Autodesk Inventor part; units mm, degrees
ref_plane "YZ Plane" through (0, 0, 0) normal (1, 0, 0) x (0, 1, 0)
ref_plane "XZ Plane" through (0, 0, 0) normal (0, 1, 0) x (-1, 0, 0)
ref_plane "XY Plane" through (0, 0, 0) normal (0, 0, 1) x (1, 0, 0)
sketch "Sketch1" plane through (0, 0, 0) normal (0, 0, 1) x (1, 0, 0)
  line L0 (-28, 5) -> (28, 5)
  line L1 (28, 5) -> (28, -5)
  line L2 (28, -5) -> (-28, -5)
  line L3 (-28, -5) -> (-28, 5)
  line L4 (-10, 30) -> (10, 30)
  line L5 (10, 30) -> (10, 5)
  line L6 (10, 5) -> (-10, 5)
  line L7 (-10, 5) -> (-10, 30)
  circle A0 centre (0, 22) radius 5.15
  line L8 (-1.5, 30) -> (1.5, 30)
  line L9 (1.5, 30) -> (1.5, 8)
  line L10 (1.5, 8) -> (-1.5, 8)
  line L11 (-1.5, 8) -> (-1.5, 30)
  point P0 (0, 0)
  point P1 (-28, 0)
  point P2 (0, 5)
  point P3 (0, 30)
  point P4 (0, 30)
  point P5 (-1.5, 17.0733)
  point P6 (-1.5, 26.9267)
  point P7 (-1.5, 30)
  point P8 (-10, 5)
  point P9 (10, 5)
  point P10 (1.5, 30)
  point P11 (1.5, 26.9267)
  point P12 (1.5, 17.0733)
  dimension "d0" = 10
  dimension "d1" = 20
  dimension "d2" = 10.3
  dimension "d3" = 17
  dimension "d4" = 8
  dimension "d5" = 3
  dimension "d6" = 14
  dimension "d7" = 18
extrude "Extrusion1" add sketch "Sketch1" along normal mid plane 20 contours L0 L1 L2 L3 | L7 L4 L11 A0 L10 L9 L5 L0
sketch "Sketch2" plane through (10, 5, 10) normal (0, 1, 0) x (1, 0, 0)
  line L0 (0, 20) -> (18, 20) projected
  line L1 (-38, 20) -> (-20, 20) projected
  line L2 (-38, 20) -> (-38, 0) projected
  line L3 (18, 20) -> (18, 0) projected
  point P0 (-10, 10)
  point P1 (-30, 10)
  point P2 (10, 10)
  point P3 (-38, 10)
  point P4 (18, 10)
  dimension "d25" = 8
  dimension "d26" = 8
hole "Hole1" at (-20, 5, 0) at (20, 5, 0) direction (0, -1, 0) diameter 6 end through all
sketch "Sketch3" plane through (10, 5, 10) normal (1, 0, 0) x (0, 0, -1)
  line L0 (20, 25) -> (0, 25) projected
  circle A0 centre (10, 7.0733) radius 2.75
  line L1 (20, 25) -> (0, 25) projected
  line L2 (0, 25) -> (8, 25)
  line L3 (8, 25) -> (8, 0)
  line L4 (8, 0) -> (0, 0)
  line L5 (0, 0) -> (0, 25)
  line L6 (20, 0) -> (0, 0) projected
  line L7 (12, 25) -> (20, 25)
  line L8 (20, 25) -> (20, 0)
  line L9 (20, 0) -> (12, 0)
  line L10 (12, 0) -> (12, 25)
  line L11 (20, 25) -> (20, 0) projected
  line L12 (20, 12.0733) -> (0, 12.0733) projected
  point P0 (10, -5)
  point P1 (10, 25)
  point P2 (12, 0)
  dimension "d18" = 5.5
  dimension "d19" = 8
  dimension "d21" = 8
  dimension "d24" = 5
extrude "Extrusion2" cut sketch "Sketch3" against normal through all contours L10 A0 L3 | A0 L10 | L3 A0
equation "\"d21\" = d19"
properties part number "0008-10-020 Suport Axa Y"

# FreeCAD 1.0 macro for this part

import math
import FreeCAD as App
import Part
import Sketcher
from FreeCAD import Vector
Q = App.Units.Quantity

doc = App.newDocument("Part")
body = doc.addObject("PartDesign::Body", "Body")

# Sketch on XY plane
sketch1 = body.newObject("Sketcher::SketchObject", "Sketch")
sketch1.AttachmentSupport = (doc.getObject("XY_Plane"), [""])
sketch1.MapMode = "FlatFace"
sketch1.addGeometry([
    Part.LineSegment(Vector(-10, 5, 0), Vector(-28, 5, 0)),  # 0
    Part.LineSegment(Vector(-28, 5, 0), Vector(-28, -5, 0)),  # 1
    Part.LineSegment(Vector(-28, -5, 0), Vector(28, -5, 0)),  # 2
    Part.LineSegment(Vector(28, -5, 0), Vector(28, 5, 0)),  # 3
    Part.LineSegment(Vector(28, 5, 0), Vector(10, 5, 0)),  # 4
    Part.LineSegment(Vector(10, 5, 0), Vector(10, 30, 0)),  # 5
    Part.LineSegment(Vector(10, 30, 0), Vector(1.5, 30, 0)),  # 6
    Part.LineSegment(Vector(1.5, 30, 0), Vector(1.5, 26.9, 0)),  # 7
    Part.ArcOfCircle(Part.Circle(Vector(0, 22, 0), Vector(0, 0, 1), 5.2), math.radians(-73), math.radians(73)),  # 8
    Part.LineSegment(Vector(1.5, 17.1, 0), Vector(1.5, 8, 0)),  # 9
    Part.LineSegment(Vector(1.5, 8, 0), Vector(-1.5, 8, 0)),  # 10
    Part.LineSegment(Vector(-1.5, 8, 0), Vector(-1.5, 17.1, 0)),  # 11
    Part.ArcOfCircle(Part.Circle(Vector(0, 22, 0), Vector(0, 0, 1), 5.2), math.radians(107), math.radians(253)),  # 12
    Part.LineSegment(Vector(-1.5, 26.9, 0), Vector(-1.5, 30, 0)),  # 13
    Part.LineSegment(Vector(-1.5, 30, 0), Vector(-10, 30, 0)),  # 14
    Part.LineSegment(Vector(-10, 30, 0), Vector(-10, 5, 0)),  # 15
], False)
sketch1.addConstraint([
    Sketcher.Constraint("Coincident", 0, 2, 1, 1),
    Sketcher.Constraint("Coincident", 1, 2, 2, 1),
    Sketcher.Constraint("Coincident", 2, 2, 3, 1),
    Sketcher.Constraint("Coincident", 3, 2, 4, 1),
    Sketcher.Constraint("Coincident", 4, 2, 5, 1),
    Sketcher.Constraint("Coincident", 5, 2, 6, 1),
    Sketcher.Constraint("Coincident", 6, 2, 7, 1),
    Sketcher.Constraint("Coincident", 7, 2, 8, 2),
    Sketcher.Constraint("Coincident", 8, 1, 9, 1),
    Sketcher.Constraint("Coincident", 9, 2, 10, 1),
    Sketcher.Constraint("Coincident", 10, 2, 11, 1),
    Sketcher.Constraint("Coincident", 11, 2, 12, 2),
    Sketcher.Constraint("Coincident", 12, 1, 13, 1),
    Sketcher.Constraint("Coincident", 13, 2, 14, 1),
    Sketcher.Constraint("Coincident", 14, 2, 15, 1),
    Sketcher.Constraint("Coincident", 15, 2, 0, 1),
    Sketcher.Constraint("Horizontal", 0),
    Sketcher.Constraint("Vertical", 1),
    Sketcher.Constraint("Horizontal", 2),
    Sketcher.Constraint("Vertical", 3),
    Sketcher.Constraint("Horizontal", 4),
    Sketcher.Constraint("Vertical", 5),
    Sketcher.Constraint("Horizontal", 6),
    Sketcher.Constraint("Vertical", 7),
    Sketcher.Constraint("Vertical", 9),
    Sketcher.Constraint("Horizontal", 10),
    Sketcher.Constraint("Vertical", 11),
    Sketcher.Constraint("Vertical", 13),
    Sketcher.Constraint("Horizontal", 14),
    Sketcher.Constraint("Vertical", 15),
    Sketcher.Constraint("Coincident", 12, 3, 8, 3),
    Sketcher.Constraint("Equal", 8, 12),
    Sketcher.Constraint("Symmetric", 0, 2, 2, 2, -1, 1),
    Sketcher.Constraint("Symmetric", 8, 1, 11, 2, -2),
    Sketcher.Constraint("Symmetric", 6, 2, 13, 2, -2),
    Sketcher.Constraint("Symmetric", 4, 2, 15, 2, -2),
    Sketcher.Constraint("Vertical", 7, 2, 8, 1),
    Sketcher.Constraint("DistanceX", 0, 2, 0, 1, Q("18 mm")),
    Sketcher.Constraint("DistanceX", 10, 2, 10, 1, Q("3 mm")),
    Sketcher.Constraint("DistanceY", 1, 2, 1, 1, Q("10 mm")),
    Sketcher.Constraint("Radius", 8, Q("5.15 mm")),
    Sketcher.Constraint("DistanceX", -1, 1, 4, 2, Q("10 mm")),
    Sketcher.Constraint("DistanceY", -1, 1, 9, 2, Q("8 mm")),
    Sketcher.Constraint("DistanceY", 0, 2, 8, 3, Q("17 mm")),
    Sketcher.Constraint("DistanceY", 8, 3, 5, 2, Q("8 mm")),
])
pad1 = body.newObject("PartDesign::Pad", "Pad")
pad1.Profile = sketch1
pad1.Length = 20
pad1.Midplane = True

# Sketch on XZ plane
sketch2 = body.newObject("Sketcher::SketchObject", "Sketch001")
sketch2.AttachmentSupport = (doc.getObject("XZ_Plane"), [""])
sketch2.MapMode = "FlatFace"
sketch2.AttachmentOffset = App.Placement(Vector(0, 0, -5), App.Rotation())
sketch2.addGeometry([
    Part.Circle(Vector(-20, 0, 0), Vector(0, 0, 1), 3),
    Part.Circle(Vector(20, 0, 0), Vector(0, 0, 1), 3),
], False)
sketch2.addConstraint([
    Sketcher.Constraint("Equal", 0, 1),
    Sketcher.Constraint("Symmetric", 0, 3, 1, 3, -1, 1),
    Sketcher.Constraint("PointOnObject", 0, 3, -1),
    Sketcher.Constraint("Diameter", 0, Q("6 mm")),
    Sketcher.Constraint("DistanceX", 0, 3, -1, 1, Q("20 mm")),
])
doc.recompute()
hole = body.newObject("PartDesign::Hole", "Hole")
hole.Profile = sketch2
hole.ThreadType = "None"
hole.Diameter = 6
hole.DepthType = "ThroughAll"
hole.Reversed = True

# Sketch on YZ plane
sketch3 = body.newObject("Sketcher::SketchObject", "Sketch002")
sketch3.AttachmentSupport = (doc.getObject("YZ_Plane"), [""])
sketch3.MapMode = "FlatFace"
sketch3.AttachmentOffset = App.Placement(Vector(0, 0, 10), App.Rotation())
sketch3.addGeometry(Part.Circle(Vector(12.1, 0, 0), Vector(0, 0, 1), 2.8), False)
sketch3.addConstraint([
    Sketcher.Constraint("PointOnObject", 0, 3, -1),
    Sketcher.Constraint("Diameter", 0, Q("5.5 mm")),
    Sketcher.Constraint("DistanceX", -1, 1, 0, 3, Q("12.0733 mm")),
])
pocket1 = body.newObject("PartDesign::Pocket", "Pocket")
pocket1.Profile = sketch3
pocket1.Type = "ThroughAll"

doc.recompute()
